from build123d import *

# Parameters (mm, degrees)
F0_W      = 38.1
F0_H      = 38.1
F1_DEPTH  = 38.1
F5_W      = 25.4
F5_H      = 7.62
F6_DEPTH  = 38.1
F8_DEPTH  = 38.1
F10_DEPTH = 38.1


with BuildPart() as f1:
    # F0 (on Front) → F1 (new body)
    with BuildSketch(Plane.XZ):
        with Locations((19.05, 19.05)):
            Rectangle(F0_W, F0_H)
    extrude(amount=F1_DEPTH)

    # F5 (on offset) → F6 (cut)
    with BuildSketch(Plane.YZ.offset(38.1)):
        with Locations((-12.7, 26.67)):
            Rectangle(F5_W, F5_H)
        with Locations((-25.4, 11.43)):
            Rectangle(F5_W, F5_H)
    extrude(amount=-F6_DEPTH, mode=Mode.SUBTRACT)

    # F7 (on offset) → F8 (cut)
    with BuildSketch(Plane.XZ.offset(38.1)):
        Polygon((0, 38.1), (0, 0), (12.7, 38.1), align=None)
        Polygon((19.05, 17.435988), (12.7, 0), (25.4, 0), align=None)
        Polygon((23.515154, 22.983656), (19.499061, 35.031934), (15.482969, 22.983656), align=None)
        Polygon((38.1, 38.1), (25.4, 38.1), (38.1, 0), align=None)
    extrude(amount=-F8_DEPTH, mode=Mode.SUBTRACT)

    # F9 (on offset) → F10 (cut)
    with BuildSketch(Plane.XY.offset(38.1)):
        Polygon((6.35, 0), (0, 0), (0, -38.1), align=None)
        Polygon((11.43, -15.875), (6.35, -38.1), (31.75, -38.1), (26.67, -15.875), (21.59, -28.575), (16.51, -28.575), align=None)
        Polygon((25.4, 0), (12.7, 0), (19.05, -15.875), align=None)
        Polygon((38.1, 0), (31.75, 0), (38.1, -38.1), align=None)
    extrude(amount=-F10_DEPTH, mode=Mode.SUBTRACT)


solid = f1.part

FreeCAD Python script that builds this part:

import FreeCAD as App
import Part
import Sketcher
Q = App.Units.Quantity


def add_polygon(sketch, points):
    """Adds a closed chain of lines whose ends are joined by coincident constraints."""
    first, n = sketch.GeometryCount, len(points)
    for a, b in zip(points, points[1:] + points[:1]):
        sketch.addGeometry(Part.LineSegment(App.Vector(*a, 0), App.Vector(*b, 0)), False)
    for i in range(n):
        sketch.addConstraint(Sketcher.Constraint("Coincident", first + i, 2, first + (i + 1) % n, 1))

doc = App.newDocument("Part")
params = doc.addObject("Spreadsheet::Sheet", "Params")
for row, (alias, value) in enumerate([
    ("sketch1_width", "1.5 in"),
    ("pad1_length", "1.5 in"),
    ("sketch2_width", "1 in"),
    ("sketch2_height", "0.3 in"),
    ("pocket1_length", "1.5 in"),
    ("sketch3_width", "0.5 in"),
    ("sketch3_height", "1.5 in"),
    ("sketch3_length", "0.5 in"),
    ("pocket2_length", "1.5 in"),
    ("sketch4_width", "1 in"),
    ("sketch4_width2", "0.2 in"),
    ("sketch4_width3", "0.5 in"),
    ("sketch4_height", "1.5 in"),
    ("pocket3_length", "1.5 in"),
], start=1):
    params.set(f"A{row}", alias)
    params.set(f"B{row}", "=" + value)
    params.setAlias(f"B{row}", alias)

body = doc.addObject("PartDesign::Body", "Body")

# Sketch on XZ plane
sketch1 = doc.addObject("Sketcher::SketchObject", "Sketch")
body.addObject(sketch1)
sketch1.AttachmentSupport = (doc.XZ_Plane, [""])
sketch1.MapMode = "FlatFace"
add_polygon(sketch1, [(0, 38), (0, 0), (38, 0), (38, 38)])  # lines 0-3
sketch1.addConstraint(Sketcher.Constraint("Vertical", 0))
sketch1.addConstraint(Sketcher.Constraint("Horizontal", 1))
sketch1.addConstraint(Sketcher.Constraint("Vertical", 2))
sketch1.addConstraint(Sketcher.Constraint("Horizontal", 3))
sketch1.addConstraint(Sketcher.Constraint("Coincident", 0, 2, -1, 1))
sketch1.addConstraint(Sketcher.Constraint("Equal", 3, 0))
sketch1.addConstraint(Sketcher.Constraint("DistanceX", 1, 1, 1, 2, Q("1.5 in")))
sketch1.setExpression("Constraints[10]", "Params.sketch1_width")
pad1 = doc.addObject("PartDesign::Pad", "Pad")
body.addObject(pad1)
pad1.Profile = sketch1
pad1.setExpression("Length", "Params.pad1_length")

# Sketch on YZ plane
sketch2 = doc.addObject("Sketcher::SketchObject", "Sketch001")
body.addObject(sketch2)
sketch2.AttachmentSupport = (doc.YZ_Plane, [""])
sketch2.MapMode = "FlatFace"
sketch2.AttachmentOffset = App.Placement(App.Vector(0, 0, 1.5 * 25.4), App.Rotation())
add_polygon(sketch2, [(-25, 30), (-25, 23), (0, 23), (0, 30)])  # lines 0-3
add_polygon(sketch2, [(-38, 15), (-38, 8), (-13, 8), (-13, 15)])  # lines 4-7
sketch2.addConstraint(Sketcher.Constraint("Vertical", 0))
sketch2.addConstraint(Sketcher.Constraint("Horizontal", 1))
sketch2.addConstraint(Sketcher.Constraint("Vertical", 2))
sketch2.addConstraint(Sketcher.Constraint("Horizontal", 3))
sketch2.addConstraint(Sketcher.Constraint("Vertical", 4))
sketch2.addConstraint(Sketcher.Constraint("Horizontal", 5))
sketch2.addConstraint(Sketcher.Constraint("Vertical", 6))
sketch2.addConstraint(Sketcher.Constraint("Horizontal", 7))
sketch2.addConstraint(Sketcher.Constraint("PointOnObject", 1, 2, -2))
sketch2.addConstraint(Sketcher.Constraint("Equal", 3, 5))
sketch2.addConstraint(Sketcher.Constraint("Equal", 2, 4))
sketch2.addConstraint(Sketcher.Constraint("DistanceX", 1, 1, 1, 2, Q("1 in")))
sketch2.addConstraint(Sketcher.Constraint("DistanceY", 0, 2, 0, 1, Q("0.3 in")))
sketch2.addConstraint(Sketcher.Constraint("DistanceY", -1, 1, 0, 2, Q("0.9 in")))
sketch2.addConstraint(Sketcher.Constraint("DistanceX", 4, 2, -1, 1, Q("1.5 in")))
sketch2.addConstraint(Sketcher.Constraint("DistanceY", -1, 1, 4, 2, Q("0.3 in")))
sketch2.setExpression("Constraints[19]", "Params.sketch2_width")
sketch2.setExpression("Constraints[20]", "Params.sketch2_height")
pocket1 = doc.addObject("PartDesign::Pocket", "Pocket")
body.addObject(pocket1)
pocket1.Profile = sketch2
pocket1.setExpression("Length", "Params.pocket1_length")

# Sketch on XZ plane
sketch3 = doc.addObject("Sketcher::SketchObject", "Sketch002")
body.addObject(sketch3)
sketch3.AttachmentSupport = (doc.XZ_Plane, [""])
sketch3.MapMode = "FlatFace"
sketch3.AttachmentOffset = App.Placement(App.Vector(0, 0, 1.5 * 25.4), App.Rotation())
add_polygon(sketch3, [(0, 38), (0, 0), (13, 38)])  # lines 0-2
add_polygon(sketch3, [(19, 17), (13, 0), (25, 0)])  # lines 3-5
add_polygon(sketch3, [(24, 23), (19, 35), (15, 23)])  # lines 6-8
add_polygon(sketch3, [(38, 38), (25, 38), (38, 0)])  # lines 9-11
sketch3.addConstraint(Sketcher.Constraint("Vertical", 0))
sketch3.addConstraint(Sketcher.Constraint("Horizontal", 2))
sketch3.addConstraint(Sketcher.Constraint("Horizontal", 4))
sketch3.addConstraint(Sketcher.Constraint("Horizontal", 8))
sketch3.addConstraint(Sketcher.Constraint("Horizontal", 9))
sketch3.addConstraint(Sketcher.Constraint("Vertical", 11))
sketch3.addConstraint(Sketcher.Constraint("Coincident", 0, 2, -1, 1))
sketch3.addConstraint(Sketcher.Constraint("PointOnObject", 3, 2, -1))
sketch3.addConstraint(Sketcher.Constraint("PointOnObject", 10, 2, -1))
sketch3.addConstraint(Sketcher.Constraint("Parallel", 1, 7))
sketch3.addConstraint(Sketcher.Constraint("Parallel", 6, 10))
sketch3.addConstraint(Sketcher.Constraint("Horizontal", 2, 2, 9, 2))
sketch3.addConstraint(Sketcher.Constraint("Vertical", 1, 2, 3, 2))
sketch3.addConstraint(Sketcher.Constraint("Vertical", 4, 2, 9, 2))
sketch3.addConstraint(Sketcher.Constraint("Equal", 2, 4))
sketch3.addConstraint(Sketcher.Constraint("Equal", 4, 9))
sketch3.addConstraint(Sketcher.Constraint("Equal", 3, 5))
sketch3.addConstraint(Sketcher.Constraint("DistanceX", 2, 2, 2, 1, Q("0.5 in")))
sketch3.addConstraint(Sketcher.Constraint("DistanceY", 0, 2, 0, 1, Q("1.5 in")))
sketch3.addConstraint(Sketcher.Constraint("Distance", 6, Q("0.5 in")))
sketch3.addConstraint(Sketcher.Constraint("DistanceX", -1, 1, 6, 2, Q("19.499061 mm")))
sketch3.addConstraint(Sketcher.Constraint("DistanceY", 5, 2, 7, 2, Q("5.547668 mm")))
sketch3.addConstraint(Sketcher.Constraint("Distance", 3, Q("18.556298 mm")))
sketch3.setExpression("Constraints[29]", "Params.sketch3_width")
sketch3.setExpression("Constraints[30]", "Params.sketch3_height")
sketch3.setExpression("Constraints[31]", "Params.sketch3_length")
pocket2 = doc.addObject("PartDesign::Pocket", "Pocket001")
body.addObject(pocket2)
pocket2.Profile = sketch3
pocket2.setExpression("Length", "Params.pocket2_length")

# Sketch on XY plane
sketch4 = doc.addObject("Sketcher::SketchObject", "Sketch003")
body.addObject(sketch4)
sketch4.AttachmentSupport = (doc.XY_Plane, [""])
sketch4.MapMode = "FlatFace"
sketch4.AttachmentOffset = App.Placement(App.Vector(0, 0, 1.5 * 25.4), App.Rotation())
add_polygon(sketch4, [(6, 0), (0, 0), (0, -38)])  # lines 0-2
add_polygon(sketch4, [(11, -16), (6, -38), (32, -38), (27, -16), (22, -29), (17, -29)])  # lines 3-8
add_polygon(sketch4, [(25, 0), (13, 0), (19, -16)])  # lines 9-11
add_polygon(sketch4, [(38, 0), (32, 0), (38, -38)])  # lines 12-14
sketch4.addConstraint(Sketcher.Constraint("Horizontal", 0))
sketch4.addConstraint(Sketcher.Constraint("Vertical", 1))
sketch4.addConstraint(Sketcher.Constraint("Horizontal", 4))
sketch4.addConstraint(Sketcher.Constraint("Horizontal", 7))
sketch4.addConstraint(Sketcher.Constraint("Horizontal", 9))
sketch4.addConstraint(Sketcher.Constraint("Horizontal", 12))
sketch4.addConstraint(Sketcher.Constraint("Vertical", 14))
sketch4.addConstraint(Sketcher.Constraint("Coincident", 0, 2, -1, 1))
sketch4.addConstraint(Sketcher.Constraint("PointOnObject", 9, 2, -1))
sketch4.addConstraint(Sketcher.Constraint("PointOnObject", 12, 2, -1))
sketch4.addConstraint(Sketcher.Constraint("Parallel", 8, 10))
sketch4.addConstraint(Sketcher.Constraint("Parallel", 6, 11))
sketch4.addConstraint(Sketcher.Constraint("Horizontal", 1, 2, 3, 2))
sketch4.addConstraint(Sketcher.Constraint("Horizontal", 5, 2, 8, 2))
sketch4.addConstraint(Sketcher.Constraint("Horizontal", 8, 2, 10, 2))
sketch4.addConstraint(Sketcher.Constraint("Horizontal", 4, 2, 13, 2))
sketch4.addConstraint(Sketcher.Constraint("Vertical", 2, 2, 3, 2))
sketch4.addConstraint(Sketcher.Constraint("Vertical", 4, 2, 12, 2))
sketch4.addConstraint(Sketcher.Constraint("Equal", 0, 12))
sketch4.addConstraint(Sketcher.Constraint("Equal", 3, 5))
sketch4.addConstraint(Sketcher.Constraint("Equal", 6, 8))
sketch4.addConstraint(Sketcher.Constraint("DistanceX", 4, 1, 4, 2, Q("1 in")))
sketch4.addConstraint(Sketcher.Constraint("DistanceX", 7, 2, 7, 1, Q("0.2 in")))
sketch4.addConstraint(Sketcher.Constraint("DistanceX", 9, 2, 9, 1, Q("0.5 in")))
sketch4.addConstraint(Sketcher.Constraint("DistanceY", 1, 2, 1, 1, Q("1.5 in")))
sketch4.addConstraint(Sketcher.Constraint("DistanceX", -1, 1, 11, 2, Q("1 in")))
sketch4.addConstraint(Sketcher.Constraint("DistanceX", 9, 2, 14, 2, Q("1 in")))
sketch4.addConstraint(Sketcher.Constraint("DistanceX", 5, 2, 4, 2, Q("0.2 in")))
sketch4.addConstraint(Sketcher.Constraint("DistanceY", 6, 2, 5, 2, Q("0.5 in")))
sketch4.setExpression("Constraints[36]", "Params.sketch4_width")
sketch4.setExpression("Constraints[37]", "Params.sketch4_width2")
sketch4.setExpression("Constraints[38]", "Params.sketch4_width3")
sketch4.setExpression("Constraints[39]", "Params.sketch4_height")
pocket3 = doc.addObject("PartDesign::Pocket", "Pocket002")
body.addObject(pocket3)
pocket3.Profile = sketch4
pocket3.setExpression("Length", "Params.pocket3_length")

doc.recompute()
